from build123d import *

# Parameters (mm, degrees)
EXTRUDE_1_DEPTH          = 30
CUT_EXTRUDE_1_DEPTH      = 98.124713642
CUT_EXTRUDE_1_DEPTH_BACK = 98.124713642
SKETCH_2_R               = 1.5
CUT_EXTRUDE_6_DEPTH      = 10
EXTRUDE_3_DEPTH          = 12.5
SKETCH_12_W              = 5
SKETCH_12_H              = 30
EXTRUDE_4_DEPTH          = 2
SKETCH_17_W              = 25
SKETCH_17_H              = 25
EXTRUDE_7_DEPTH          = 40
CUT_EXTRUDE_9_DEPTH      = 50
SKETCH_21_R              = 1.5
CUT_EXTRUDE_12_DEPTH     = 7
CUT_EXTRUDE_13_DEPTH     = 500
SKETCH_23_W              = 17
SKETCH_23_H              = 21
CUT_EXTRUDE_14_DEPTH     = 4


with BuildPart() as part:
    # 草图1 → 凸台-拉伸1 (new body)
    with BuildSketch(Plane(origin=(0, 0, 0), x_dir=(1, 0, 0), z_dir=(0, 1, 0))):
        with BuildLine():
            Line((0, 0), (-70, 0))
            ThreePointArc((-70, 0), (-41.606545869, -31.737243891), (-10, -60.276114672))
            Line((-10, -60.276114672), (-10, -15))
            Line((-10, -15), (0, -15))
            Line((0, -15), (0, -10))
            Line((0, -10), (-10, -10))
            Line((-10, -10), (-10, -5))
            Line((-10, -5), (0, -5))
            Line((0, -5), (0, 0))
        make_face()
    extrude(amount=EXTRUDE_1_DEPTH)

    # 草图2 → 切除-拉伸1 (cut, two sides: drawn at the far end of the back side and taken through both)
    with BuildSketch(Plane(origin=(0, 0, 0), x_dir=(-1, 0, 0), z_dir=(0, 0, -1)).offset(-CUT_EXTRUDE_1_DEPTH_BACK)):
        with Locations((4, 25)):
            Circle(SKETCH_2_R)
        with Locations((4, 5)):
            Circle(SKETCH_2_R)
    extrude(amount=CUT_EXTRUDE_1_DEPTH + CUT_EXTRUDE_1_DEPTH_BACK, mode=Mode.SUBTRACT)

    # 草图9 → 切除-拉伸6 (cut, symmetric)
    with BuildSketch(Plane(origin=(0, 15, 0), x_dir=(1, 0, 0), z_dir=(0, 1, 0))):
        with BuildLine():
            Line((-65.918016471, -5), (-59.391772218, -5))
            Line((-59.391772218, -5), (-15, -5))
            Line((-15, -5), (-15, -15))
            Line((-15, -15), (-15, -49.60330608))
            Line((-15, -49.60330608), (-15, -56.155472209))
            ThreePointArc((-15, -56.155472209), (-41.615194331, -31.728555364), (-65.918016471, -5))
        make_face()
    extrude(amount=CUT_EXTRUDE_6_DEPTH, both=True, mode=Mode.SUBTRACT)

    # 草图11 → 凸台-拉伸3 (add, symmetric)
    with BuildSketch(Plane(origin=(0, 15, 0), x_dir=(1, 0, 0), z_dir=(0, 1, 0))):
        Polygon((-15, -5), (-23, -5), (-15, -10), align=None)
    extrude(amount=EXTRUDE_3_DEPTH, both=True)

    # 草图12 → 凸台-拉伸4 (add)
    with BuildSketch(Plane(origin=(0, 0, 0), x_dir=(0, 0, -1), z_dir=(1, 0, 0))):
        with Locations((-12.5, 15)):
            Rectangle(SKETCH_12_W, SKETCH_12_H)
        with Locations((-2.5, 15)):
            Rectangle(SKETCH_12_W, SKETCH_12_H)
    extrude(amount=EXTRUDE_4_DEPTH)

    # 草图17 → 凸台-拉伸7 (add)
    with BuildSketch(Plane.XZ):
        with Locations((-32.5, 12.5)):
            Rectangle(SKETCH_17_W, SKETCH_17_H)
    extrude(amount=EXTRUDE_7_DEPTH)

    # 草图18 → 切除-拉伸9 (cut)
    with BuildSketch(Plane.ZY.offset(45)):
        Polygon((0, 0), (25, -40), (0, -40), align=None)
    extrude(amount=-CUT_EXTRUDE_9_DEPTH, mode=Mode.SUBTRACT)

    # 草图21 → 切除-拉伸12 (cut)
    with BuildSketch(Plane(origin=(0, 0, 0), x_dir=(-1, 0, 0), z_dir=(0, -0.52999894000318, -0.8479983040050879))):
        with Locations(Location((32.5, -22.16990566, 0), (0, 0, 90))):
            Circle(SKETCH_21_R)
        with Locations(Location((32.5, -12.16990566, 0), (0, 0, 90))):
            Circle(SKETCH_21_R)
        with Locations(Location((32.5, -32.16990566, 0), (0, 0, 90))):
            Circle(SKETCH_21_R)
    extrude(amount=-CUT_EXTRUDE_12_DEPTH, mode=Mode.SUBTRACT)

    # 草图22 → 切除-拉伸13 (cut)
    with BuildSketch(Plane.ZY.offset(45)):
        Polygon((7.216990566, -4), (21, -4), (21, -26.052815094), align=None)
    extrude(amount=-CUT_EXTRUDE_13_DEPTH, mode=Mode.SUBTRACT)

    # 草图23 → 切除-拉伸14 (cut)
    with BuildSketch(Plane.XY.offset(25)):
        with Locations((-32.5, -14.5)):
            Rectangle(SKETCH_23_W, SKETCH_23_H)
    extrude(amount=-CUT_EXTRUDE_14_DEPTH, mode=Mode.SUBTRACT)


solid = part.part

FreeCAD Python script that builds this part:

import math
import FreeCAD as App
import Part
import Sketcher


def add_polygon(sketch, points):
    """Adds a closed chain of lines whose ends are joined by coincident constraints."""
    first, n = sketch.GeometryCount, len(points)
    for a, b in zip(points, points[1:] + points[:1]):
        sketch.addGeometry(Part.LineSegment(App.Vector(*a, 0), App.Vector(*b, 0)), False)
    for i in range(n):
        sketch.addConstraint(Sketcher.Constraint("Coincident", first + i, 2, first + (i + 1) % n, 1))

doc = App.newDocument("Part")
params = doc.addObject("Spreadsheet::Sheet", "Params")
for row, (alias, value) in enumerate([
    ("sketch1_radius", "400 mm"),
    ("sketch1_width", "70 mm"),
    ("sketch1_width2", "10 mm"),
    ("sketch1_height", "5 mm"),
    ("pad1_length", "30 mm"),
    ("sketch2_diameter", "3 mm"),
    ("sketch3_radius", "400 mm"),
    ("pocket2_length", "20 mm"),
    ("sketch4_width", "8 mm"),
    ("sketch4_height", "5 mm"),
    ("pad2_length", "25 mm"),
    ("sketch5_width", "30 mm"),
    ("sketch5_height", "5 mm"),
    ("pad3_length", "2 mm"),
    ("sketch6_width", "25 mm"),
    ("pad4_length", "40 mm"),
    ("sketch7_width", "40 mm"),
    ("sketch7_height", "25 mm"),
    ("pocket3_length", "50 mm"),
    ("sketch8_diameter", "3 mm"),
    ("pocket4_length", "7 mm"),
    ("pocket5_length", "500 mm"),
    ("sketch10_width", "17 mm"),
    ("sketch10_height", "21 mm"),
    ("pocket6_length", "4 mm"),
], start=1):
    params.set(f"A{row}", alias)
    params.set(f"B{row}", "=" + value)
    params.setAlias(f"B{row}", alias)

body = doc.addObject("PartDesign::Body", "Body")

# Sketch on XZ plane
sketch1 = body.newObject("Sketcher::SketchObject", "Sketch")
sketch1.AttachmentSupport = (doc.getObject("XZ_Plane"), [""])
sketch1.MapMode = "FlatFace"
sketch1.addGeometry(Part.LineSegment(App.Vector(0, 0, 0), App.Vector(-70, 0, 0)), False)
sketch1.addGeometry(Part.ArcOfCircle(Part.Circle(App.Vector(241.884734, -250.455411, 0), App.Vector(0, 0, 1), 400), math.radians(129.028865), math.radians(141.234199)), False)
sketch1.addGeometry(Part.LineSegment(App.Vector(-10, 60.276115, 0), App.Vector(-10, 15, 0)), False)
sketch1.addGeometry(Part.LineSegment(App.Vector(-10, 15, 0), App.Vector(0, 15, 0)), False)
sketch1.addGeometry(Part.LineSegment(App.Vector(0, 15, 0), App.Vector(0, 10, 0)), False)
sketch1.addGeometry(Part.LineSegment(App.Vector(0, 10, 0), App.Vector(-10, 10, 0)), False)
sketch1.addGeometry(Part.LineSegment(App.Vector(-10, 10, 0), App.Vector(-10, 5, 0)), False)
sketch1.addGeometry(Part.LineSegment(App.Vector(-10, 5, 0), App.Vector(0, 5, 0)), False)
sketch1.addGeometry(Part.LineSegment(App.Vector(0, 5, 0), App.Vector(0, 0, 0)), False)
sketch1.addConstraint(Sketcher.Constraint("Coincident", 0, 2, 1, 2))
sketch1.addConstraint(Sketcher.Constraint("Coincident", 1, 1, 2, 1))
sketch1.addConstraint(Sketcher.Constraint("Coincident", 2, 2, 3, 1))
sketch1.addConstraint(Sketcher.Constraint("Coincident", 3, 2, 4, 1))
sketch1.addConstraint(Sketcher.Constraint("Coincident", 4, 2, 5, 1))
sketch1.addConstraint(Sketcher.Constraint("Coincident", 5, 2, 6, 1))
sketch1.addConstraint(Sketcher.Constraint("Coincident", 6, 2, 7, 1))
sketch1.addConstraint(Sketcher.Constraint("Coincident", 7, 2, 8, 1))
sketch1.addConstraint(Sketcher.Constraint("Coincident", 8, 2, 0, 1))
sketch1.addConstraint(Sketcher.Constraint("Horizontal", 0))
sketch1.addConstraint(Sketcher.Constraint("Vertical", 2))
sketch1.addConstraint(Sketcher.Constraint("Horizontal", 3))
sketch1.addConstraint(Sketcher.Constraint("Vertical", 4))
sketch1.addConstraint(Sketcher.Constraint("Horizontal", 5))
sketch1.addConstraint(Sketcher.Constraint("Vertical", 6))
sketch1.addConstraint(Sketcher.Constraint("Horizontal", 7))
sketch1.addConstraint(Sketcher.Constraint("Vertical", 8))
sketch1.addConstraint(Sketcher.Constraint("Coincident", 8, 2, -1, 1))
sketch1.addConstraint(Sketcher.Constraint("PointOnObject", 3, 2, -2))
sketch1.addConstraint(Sketcher.Constraint("Vertical", 2, 2, 5, 2))
sketch1.addConstraint(Sketcher.Constraint("Equal", 4, 6))
sketch1.addConstraint(Sketcher.Constraint("Equal", 6, 8))
sketch1.addConstraint(Sketcher.Constraint("Radius", 1, 400.0))
sketch1.addConstraint(Sketcher.Constraint("DistanceX", 0, 2, 0, 1, 70.0))
sketch1.addConstraint(Sketcher.Constraint("DistanceX", 3, 1, 3, 2, 10.0))
sketch1.addConstraint(Sketcher.Constraint("DistanceY", 4, 2, 4, 1, 5.0))
sketch1.addConstraint(Sketcher.Constraint("DistanceY", 2, 2, 2, 1, 45.276115))
sketch1.setExpression("Constraints[22]", "Params.sketch1_radius")
sketch1.setExpression("Constraints[23]", "Params.sketch1_width")
sketch1.setExpression("Constraints[24]", "Params.sketch1_width2")
sketch1.setExpression("Constraints[25]", "Params.sketch1_height")
pad1 = body.newObject("PartDesign::Pad", "Pad")
pad1.Profile = sketch1
pad1.setExpression("Length", "Params.pad1_length")
pad1.Reversed = True

# Sketch on XY plane
sketch2 = body.newObject("Sketcher::SketchObject", "Sketch001")
sketch2.AttachmentSupport = (doc.getObject("XY_Plane"), [""])
sketch2.MapMode = "FlatFace"
sketch2.addGeometry(Part.Circle(App.Vector(-4, 25, 0), App.Vector(0, 0, 1), 1.5), False)
sketch2.addGeometry(Part.Circle(App.Vector(-4, 5, 0), App.Vector(0, 0, 1), 1.5), False)
sketch2.addConstraint(Sketcher.Constraint("Equal", 0, 1))
sketch2.addConstraint(Sketcher.Constraint("Vertical", 0, 3, 1, 3))
sketch2.addConstraint(Sketcher.Constraint("Diameter", 0, 3.0))
sketch2.addConstraint(Sketcher.Constraint("DistanceX", 0, 3, -1, 1, 4.0))
sketch2.addConstraint(Sketcher.Constraint("DistanceY", -1, 1, 0, 3, 25.0))
sketch2.addConstraint(Sketcher.Constraint("DistanceY", -1, 1, 1, 3, 5.0))
sketch2.setExpression("Constraints[2]", "Params.sketch2_diameter")
pocket1 = body.newObject("PartDesign::Pocket", "Pocket")
pocket1.Profile = sketch2
pocket1.Type = "ThroughAll"
pocket1.Midplane = True

# Sketch on XZ plane
sketch3 = body.newObject("Sketcher::SketchObject", "Sketch002")
sketch3.AttachmentSupport = (doc.getObject("XZ_Plane"), [""])
sketch3.MapMode = "FlatFace"
sketch3.AttachmentOffset = App.Placement(App.Vector(0, 0, -15), App.Rotation())
sketch3.addGeometry(Part.LineSegment(App.Vector(-15, 5, 0), App.Vector(-65.918016, 5, 0)), False)
sketch3.addGeometry(Part.ArcOfCircle(Part.Circle(App.Vector(241.884734, -250.45541, 0), App.Vector(0, 0, 1), 400), math.radians(129.956949), math.radians(140.309627)), False)
sketch3.addGeometry(Part.LineSegment(App.Vector(-15, 56.155472, 0), App.Vector(-15, 5, 0)), False)
sketch3.addConstraint(Sketcher.Constraint("Coincident", 0, 2, 1, 2))
sketch3.addConstraint(Sketcher.Constraint("Coincident", 1, 1, 2, 1))
sketch3.addConstraint(Sketcher.Constraint("Coincident", 2, 2, 0, 1))
sketch3.addConstraint(Sketcher.Constraint("Horizontal", 0))
sketch3.addConstraint(Sketcher.Constraint("Vertical", 2))
sketch3.addConstraint(Sketcher.Constraint("Radius", 1, 400.0))
sketch3.addConstraint(Sketcher.Constraint("DistanceY", -1, 1, 0, 2, 5.0))
sketch3.addConstraint(Sketcher.Constraint("DistanceX", 2, 2, -1, 1, 15.0))
sketch3.addConstraint(Sketcher.Constraint("DistanceX", 0, 2, 0, 1, 50.918016))
sketch3.addConstraint(Sketcher.Constraint("DistanceY", 2, 2, 2, 1, 51.155472))
sketch3.setExpression("Constraints[5]", "Params.sketch3_radius")
pocket2 = body.newObject("PartDesign::Pocket", "Pocket001")
pocket2.Profile = sketch3
pocket2.setExpression("Length", "Params.pocket2_length")
pocket2.Midplane = True

# Sketch on XZ plane
sketch4 = body.newObject("Sketcher::SketchObject", "Sketch003")
sketch4.AttachmentSupport = (doc.getObject("XZ_Plane"), [""])
sketch4.MapMode = "FlatFace"
sketch4.AttachmentOffset = App.Placement(App.Vector(0, 0, -15), App.Rotation())
add_polygon(sketch4, [(-15, 5), (-23, 5), (-15, 10)])  # lines 0-2
sketch4.addConstraint(Sketcher.Constraint("Horizontal", 0))
sketch4.addConstraint(Sketcher.Constraint("Vertical", 2))
sketch4.addConstraint(Sketcher.Constraint("DistanceX", 0, 2, 0, 1, 8.0))
sketch4.addConstraint(Sketcher.Constraint("DistanceY", 2, 2, 2, 1, 5.0))
sketch4.addConstraint(Sketcher.Constraint("DistanceX", 0, 2, -1, 1, 23.0))
sketch4.addConstraint(Sketcher.Constraint("DistanceY", -1, 1, 0, 2, 5.0))
sketch4.setExpression("Constraints[5]", "Params.sketch4_width")
sketch4.setExpression("Constraints[6]", "Params.sketch4_height")
pad2 = body.newObject("PartDesign::Pad", "Pad001")
pad2.Profile = sketch4
pad2.setExpression("Length", "Params.pad2_length")
pad2.Midplane = True

# Sketch on YZ plane
sketch5 = body.newObject("Sketcher::SketchObject", "Sketch004")
sketch5.AttachmentSupport = (doc.getObject("YZ_Plane"), [""])
sketch5.MapMode = "FlatFace"
add_polygon(sketch5, [(30, 15), (0, 15), (0, 10), (30, 10)])  # lines 0-3
add_polygon(sketch5, [(30, 5), (0, 5), (0, 0), (30, 0)])  # lines 4-7
sketch5.addConstraint(Sketcher.Constraint("Horizontal", 0))
sketch5.addConstraint(Sketcher.Constraint("Vertical", 1))
sketch5.addConstraint(Sketcher.Constraint("Horizontal", 2))
sketch5.addConstraint(Sketcher.Constraint("Vertical", 3))
sketch5.addConstraint(Sketcher.Constraint("Horizontal", 4))
sketch5.addConstraint(Sketcher.Constraint("Vertical", 5))
sketch5.addConstraint(Sketcher.Constraint("Horizontal", 6))
sketch5.addConstraint(Sketcher.Constraint("Vertical", 7))
sketch5.addConstraint(Sketcher.Constraint("Coincident", 5, 2, -1, 1))
sketch5.addConstraint(Sketcher.Constraint("PointOnObject", 0, 2, -2))
sketch5.addConstraint(Sketcher.Constraint("Vertical", 3, 2, 6, 2))
sketch5.addConstraint(Sketcher.Constraint("Equal", 3, 5))
sketch5.addConstraint(Sketcher.Constraint("DistanceX", 0, 2, 0, 1, 30.0))
sketch5.addConstraint(Sketcher.Constraint("DistanceY", 1, 2, 1, 1, 5.0))
sketch5.addConstraint(Sketcher.Constraint("DistanceY", -1, 1, 0, 2, 15.0))
sketch5.setExpression("Constraints[20]", "Params.sketch5_width")
sketch5.setExpression("Constraints[21]", "Params.sketch5_height")
pad3 = body.newObject("PartDesign::Pad", "Pad002")
pad3.Profile = sketch5
pad3.setExpression("Length", "Params.pad3_length")

# Sketch on XZ plane
sketch6 = body.newObject("Sketcher::SketchObject", "Sketch005")
sketch6.AttachmentSupport = (doc.getObject("XZ_Plane"), [""])
sketch6.MapMode = "FlatFace"
add_polygon(sketch6, [(-45, 25), (-45, 0), (-20, 0), (-20, 25)])  # lines 0-3
sketch6.addConstraint(Sketcher.Constraint("Vertical", 0))
sketch6.addConstraint(Sketcher.Constraint("Horizontal", 1))
sketch6.addConstraint(Sketcher.Constraint("Vertical", 2))
sketch6.addConstraint(Sketcher.Constraint("Horizontal", 3))
sketch6.addConstraint(Sketcher.Constraint("PointOnObject", 0, 2, -1))
sketch6.addConstraint(Sketcher.Constraint("Equal", 3, 0))
sketch6.addConstraint(Sketcher.Constraint("DistanceX", 1, 1, 1, 2, 25.0))
sketch6.addConstraint(Sketcher.Constraint("DistanceX", 0, 2, -1, 1, 45.0))
sketch6.setExpression("Constraints[10]", "Params.sketch6_width")
pad4 = body.newObject("PartDesign::Pad", "Pad003")
pad4.Profile = sketch6
pad4.setExpression("Length", "Params.pad4_length")

# Sketch on YZ plane
sketch7 = body.newObject("Sketcher::SketchObject", "Sketch006")
sketch7.AttachmentSupport = (doc.getObject("YZ_Plane"), [""])
sketch7.MapMode = "FlatFace"
sketch7.AttachmentOffset = App.Placement(App.Vector(0, 0, -45), App.Rotation())
add_polygon(sketch7, [(-40, 25), (0, 0), (-40, 0)])  # lines 0-2
sketch7.addConstraint(Sketcher.Constraint("Horizontal", 1))
sketch7.addConstraint(Sketcher.Constraint("Vertical", 2))
sketch7.addConstraint(Sketcher.Constraint("Coincident", 0, 2, -1, 1))
sketch7.addConstraint(Sketcher.Constraint("DistanceX", 1, 2, 1, 1, 40.0))
sketch7.addConstraint(Sketcher.Constraint("DistanceY", 2, 1, 2, 2, 25.0))
sketch7.setExpression("Constraints[6]", "Params.sketch7_width")
sketch7.setExpression("Constraints[7]", "Params.sketch7_height")
pocket3 = body.newObject("PartDesign::Pocket", "Pocket002")
pocket3.Profile = sketch7
pocket3.setExpression("Length", "Params.pocket3_length")
pocket3.Reversed = True

# Sketch on an angled plane
sketch8 = body.newObject("Sketcher::SketchObject", "Sketch007")
sketch8.Placement = App.Placement(App.Vector(0, 0, 0), App.Rotation(App.Vector(-1, 0, 0), App.Vector(0, 0.847998304, -0.52999894), App.Vector(0, -0.52999894, -0.847998304), "ZXY"))
sketch8.addGeometry(Part.Circle(App.Vector(32.5, -22.169906, 0), App.Vector(0, 0, 1), 1.5), False)
sketch8.addGeometry(Part.Circle(App.Vector(32.5, -12.169906, 0), App.Vector(0, 0, 1), 1.5), False)
sketch8.addGeometry(Part.Circle(App.Vector(32.5, -32.169906, 0), App.Vector(0, 0, 1), 1.5), False)
sketch8.addConstraint(Sketcher.Constraint("Equal", 0, 1))
sketch8.addConstraint(Sketcher.Constraint("Equal", 1, 2))
sketch8.addConstraint(Sketcher.Constraint("Vertical", 0, 3, 1, 3))
sketch8.addConstraint(Sketcher.Constraint("Vertical", 1, 3, 2, 3))
sketch8.addConstraint(Sketcher.Constraint("Diameter", 0, 3.0))
sketch8.addConstraint(Sketcher.Constraint("DistanceY", 0, 3, 1, 3, 10.0))
sketch8.addConstraint(Sketcher.Constraint("DistanceY", 2, 3, 0, 3, 10.0))
sketch8.addConstraint(Sketcher.Constraint("DistanceX", -1, 1, 0, 3, 32.5))
sketch8.addConstraint(Sketcher.Constraint("DistanceY", 0, 3, -1, 1, 22.169906))
sketch8.setExpression("Constraints[4]", "Params.sketch8_diameter")
pocket4 = body.newObject("PartDesign::Pocket", "Pocket003")
pocket4.Profile = sketch8
pocket4.setExpression("Length", "Params.pocket4_length")

# Sketch on YZ plane
sketch9 = body.newObject("Sketcher::SketchObject", "Sketch008")
sketch9.AttachmentSupport = (doc.getObject("YZ_Plane"), [""])
sketch9.MapMode = "FlatFace"
sketch9.AttachmentOffset = App.Placement(App.Vector(0, 0, -45), App.Rotation())
add_polygon(sketch9, [(-4, 21), (-4, 7.216991), (-26.052815, 21)])  # lines 0-2
sketch9.addConstraint(Sketcher.Constraint("Vertical", 0))
sketch9.addConstraint(Sketcher.Constraint("Horizontal", 2))
sketch9.addConstraint(Sketcher.Constraint("DistanceX", 0, 2, -1, 1, 4.0))
sketch9.addConstraint(Sketcher.Constraint("DistanceY", -1, 1, 1, 2, 21.0))
sketch9.addConstraint(Sketcher.Constraint("DistanceY", 0, 2, 0, 1, 13.783009))
sketch9.addConstraint(Sketcher.Constraint("Distance", 1, 26.00573))
pocket5 = body.newObject("PartDesign::Pocket", "Pocket004")
pocket5.Profile = sketch9
pocket5.setExpression("Length", "Params.pocket5_length")
pocket5.Reversed = True

# Sketch on XY plane
sketch10 = body.newObject("Sketcher::SketchObject", "Sketch009")
sketch10.AttachmentSupport = (doc.getObject("XY_Plane"), [""])
sketch10.MapMode = "FlatFace"
sketch10.AttachmentOffset = App.Placement(App.Vector(0, 0, 25), App.Rotation())
add_polygon(sketch10, [(-41, -4), (-41, -25), (-24, -25), (-24, -4)])  # lines 0-3
sketch10.addConstraint(Sketcher.Constraint("Vertical", 0))
sketch10.addConstraint(Sketcher.Constraint("Horizontal", 1))
sketch10.addConstraint(Sketcher.Constraint("Vertical", 2))
sketch10.addConstraint(Sketcher.Constraint("Horizontal", 3))
sketch10.addConstraint(Sketcher.Constraint("DistanceX", 1, 1, 1, 2, 17.0))
sketch10.addConstraint(Sketcher.Constraint("DistanceY", 0, 2, 0, 1, 21.0))
sketch10.addConstraint(Sketcher.Constraint("DistanceX", 0, 2, -1, 1, 41.0))
sketch10.addConstraint(Sketcher.Constraint("DistanceY", 0, 2, -1, 1, 25.0))
sketch10.setExpression("Constraints[8]", "Params.sketch10_width")
sketch10.setExpression("Constraints[9]", "Params.sketch10_height")
pocket6 = body.newObject("PartDesign::Pocket", "Pocket005")
pocket6.Profile = sketch10
pocket6.setExpression("Length", "Params.pocket6_length")

doc.recompute()
